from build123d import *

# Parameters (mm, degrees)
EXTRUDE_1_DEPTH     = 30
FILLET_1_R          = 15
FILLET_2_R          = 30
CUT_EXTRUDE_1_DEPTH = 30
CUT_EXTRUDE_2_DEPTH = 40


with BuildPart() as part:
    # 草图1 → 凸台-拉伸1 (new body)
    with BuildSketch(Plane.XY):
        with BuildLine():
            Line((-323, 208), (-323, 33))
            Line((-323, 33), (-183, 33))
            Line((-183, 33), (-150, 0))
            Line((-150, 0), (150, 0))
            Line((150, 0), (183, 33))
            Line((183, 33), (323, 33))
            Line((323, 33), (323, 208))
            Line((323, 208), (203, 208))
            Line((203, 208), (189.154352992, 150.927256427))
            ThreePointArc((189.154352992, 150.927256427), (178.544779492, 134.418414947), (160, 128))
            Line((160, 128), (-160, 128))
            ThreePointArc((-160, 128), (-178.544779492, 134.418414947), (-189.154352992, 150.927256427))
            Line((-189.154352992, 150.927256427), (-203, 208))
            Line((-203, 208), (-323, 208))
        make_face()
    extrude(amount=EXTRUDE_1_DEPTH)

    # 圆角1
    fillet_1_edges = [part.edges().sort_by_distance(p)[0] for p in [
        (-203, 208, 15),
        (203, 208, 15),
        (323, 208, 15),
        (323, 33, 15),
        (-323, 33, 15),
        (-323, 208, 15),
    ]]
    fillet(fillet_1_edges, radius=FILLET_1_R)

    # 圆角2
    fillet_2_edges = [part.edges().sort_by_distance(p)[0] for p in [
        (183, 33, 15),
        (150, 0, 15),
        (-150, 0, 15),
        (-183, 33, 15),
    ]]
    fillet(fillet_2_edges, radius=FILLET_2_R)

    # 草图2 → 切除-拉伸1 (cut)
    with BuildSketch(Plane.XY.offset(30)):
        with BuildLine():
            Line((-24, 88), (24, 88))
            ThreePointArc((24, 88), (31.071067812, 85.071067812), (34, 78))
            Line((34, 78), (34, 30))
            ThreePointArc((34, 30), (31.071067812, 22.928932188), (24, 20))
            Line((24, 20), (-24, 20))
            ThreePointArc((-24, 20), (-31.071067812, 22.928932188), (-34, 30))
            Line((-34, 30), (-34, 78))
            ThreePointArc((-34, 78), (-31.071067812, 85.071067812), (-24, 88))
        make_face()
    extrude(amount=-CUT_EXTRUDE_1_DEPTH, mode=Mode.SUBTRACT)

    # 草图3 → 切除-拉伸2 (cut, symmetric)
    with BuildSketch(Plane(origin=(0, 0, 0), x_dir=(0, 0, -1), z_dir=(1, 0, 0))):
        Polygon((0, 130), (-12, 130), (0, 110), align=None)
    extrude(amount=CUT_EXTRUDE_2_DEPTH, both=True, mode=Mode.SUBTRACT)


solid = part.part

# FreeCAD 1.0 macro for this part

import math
import FreeCAD as App
import Part
import Sketcher

V = App.Vector


def edges_at(feature, points):
    """Names of the edges that pass closest to the given points."""
    edges = feature.Shape.Edges
    near = lambda p: min(range(len(edges)), key=lambda i: edges[i].distToShape(Part.Vertex(*p))[0])
    return sorted({f"Edge{near(p) + 1}" for p in points})


def add_polygon(sketch, points):
    """Adds a closed chain of lines whose ends are joined by coincident constraints."""
    first, n = sketch.GeometryCount, len(points)
    for a, b in zip(points, points[1:] + points[:1]):
        sketch.addGeometry(Part.LineSegment(App.Vector(*a, 0), App.Vector(*b, 0)), False)
    for i in range(n):
        sketch.addConstraint(Sketcher.Constraint("Coincident", first + i, 2, first + (i + 1) % n, 1))

doc = App.newDocument("Part")
body = doc.addObject("PartDesign::Body", "Body")

# Sketch on XY plane
sketch1 = body.newObject("Sketcher::SketchObject", "Sketch")
sketch1.AttachmentSupport = (doc.getObject("XY_Plane"), [""])
sketch1.MapMode = "FlatFace"
sketch1.addGeometry([
    Part.LineSegment(V(-323, 208, 0), V(-323, 33, 0)),  # 0
    Part.LineSegment(V(-323, 33, 0), V(-183, 33, 0)),  # 1
    Part.LineSegment(V(-183, 33, 0), V(-150, 0, 0)),  # 2
    Part.LineSegment(V(-150, 0, 0), V(150, 0, 0)),  # 3
    Part.LineSegment(V(150, 0, 0), V(183, 33, 0)),  # 4
    Part.LineSegment(V(183, 33, 0), V(323, 33, 0)),  # 5
    Part.LineSegment(V(323, 33, 0), V(323, 208, 0)),  # 6
    Part.LineSegment(V(323, 208, 0), V(203, 208, 0)),  # 7
    Part.LineSegment(V(203, 208, 0), V(189, 151, 0)),  # 8
    Part.ArcOfCircle(Part.Circle(V(160, 158, 0), V(0, 0, 1), 30), math.radians(-90), math.radians(-14)),  # 9
    Part.LineSegment(V(160, 128, 0), V(-160, 128, 0)),  # 10
    Part.ArcOfCircle(Part.Circle(V(-160, 158, 0), V(0, 0, 1), 30), math.radians(-166), math.radians(-90)),  # 11
    Part.LineSegment(V(-189, 151, 0), V(-203, 208, 0)),  # 12
    Part.LineSegment(V(-203, 208, 0), V(-323, 208, 0)),  # 13
], False)
sketch1.addConstraint([
    Sketcher.Constraint("Coincident", 0, 2, 1, 1),
    Sketcher.Constraint("Coincident", 1, 2, 2, 1),
    Sketcher.Constraint("Coincident", 2, 2, 3, 1),
    Sketcher.Constraint("Coincident", 3, 2, 4, 1),
    Sketcher.Constraint("Coincident", 4, 2, 5, 1),
    Sketcher.Constraint("Coincident", 5, 2, 6, 1),
    Sketcher.Constraint("Coincident", 6, 2, 7, 1),
    Sketcher.Constraint("Coincident", 7, 2, 8, 1),
    Sketcher.Constraint("Tangent", 8, 2, 9, 2),
    Sketcher.Constraint("Tangent", 9, 1, 10, 1),
    Sketcher.Constraint("Tangent", 10, 2, 11, 2),
    Sketcher.Constraint("Tangent", 11, 1, 12, 1),
    Sketcher.Constraint("Coincident", 12, 2, 13, 1),
    Sketcher.Constraint("Coincident", 13, 2, 0, 1),
    Sketcher.Constraint("Vertical", 0),
    Sketcher.Constraint("Horizontal", 1),
    Sketcher.Constraint("Horizontal", 3),
    Sketcher.Constraint("Horizontal", 5),
    Sketcher.Constraint("Vertical", 6),
    Sketcher.Constraint("Horizontal", 7),
    Sketcher.Constraint("Horizontal", 10),
    Sketcher.Constraint("Horizontal", 13),
    Sketcher.Constraint("Equal", 9, 11),
    Sketcher.Constraint("Symmetric", 2, 2, 3, 2, -1, 1),
    Sketcher.Constraint("Symmetric", 1, 2, 4, 2, -2),
    Sketcher.Constraint("Symmetric", 8, 2, 11, 1, -2),
    Sketcher.Constraint("Symmetric", 6, 2, 13, 2, -2),
    Sketcher.Constraint("Perpendicular", 2, 4),
    Sketcher.Constraint("Radius", 9, 30.0),
    Sketcher.Constraint("DistanceX", 1, 1, 1, 2, 140.0),
    Sketcher.Constraint("DistanceX", 3, 1, 3, 2, 300.0),
    Sketcher.Constraint("DistanceX", 7, 2, 7, 1, 120.0),
    Sketcher.Constraint("DistanceX", 10, 2, 10, 1, 320.0),
    Sketcher.Constraint("DistanceY", 0, 2, 0, 1, 175.0),
    Sketcher.Constraint("DistanceY", -1, 1, 9, 3, 158.0),
    Sketcher.Constraint("DistanceX", 0, 2, -1, 1, 323.0),
])
pad1 = body.newObject("PartDesign::Pad", "Pad")
pad1.Profile = sketch1
pad1.Length = 30
doc.recompute()

fillet = body.newObject("PartDesign::Fillet", "Fillet")
fillet.Base = (pad1, edges_at(pad1, [
    (-203, 208, 15),
    (203, 208, 15),
    (323, 208, 15),
    (323, 33, 15),
    (-323, 33, 15),
    (-323, 208, 15),
]))
fillet.Radius = 15
doc.recompute()

fillet2 = body.newObject("PartDesign::Fillet", "Fillet001")
fillet2.Base = (fillet, edges_at(fillet, [
    (183, 33, 15),
    (150, 0, 15),
    (-150, 0, 15),
    (-183, 33, 15),
]))
fillet2.Radius = 30

# Sketch on XY plane
sketch2 = body.newObject("Sketcher::SketchObject", "Sketch001")
sketch2.AttachmentSupport = (doc.getObject("XY_Plane"), [""])
sketch2.MapMode = "FlatFace"
sketch2.AttachmentOffset = App.Placement(V(0, 0, 30), App.Rotation())
sketch2.addGeometry([
    Part.LineSegment(V(24, 88, 0), V(-24, 88, 0)),  # 0
    Part.ArcOfCircle(Part.Circle(V(-24, 78, 0), V(0, 0, 1), 10), math.radians(90), math.radians(180)),  # 1
    Part.LineSegment(V(-34, 78, 0), V(-34, 30, 0)),  # 2
    Part.ArcOfCircle(Part.Circle(V(-24, 30, 0), V(0, 0, 1), 10), math.radians(180), math.radians(270)),  # 3
    Part.LineSegment(V(-24, 20, 0), V(24, 20, 0)),  # 4
    Part.ArcOfCircle(Part.Circle(V(24, 30, 0), V(0, 0, 1), 10), math.radians(-90), math.radians(0)),  # 5
    Part.LineSegment(V(34, 30, 0), V(34, 78, 0)),  # 6
    Part.ArcOfCircle(Part.Circle(V(24, 78, 0), V(0, 0, 1), 10), math.radians(0), math.radians(90)),  # 7
], False)
sketch2.addConstraint([
    Sketcher.Constraint("Tangent", 0, 2, 1, 1),
    Sketcher.Constraint("Tangent", 1, 2, 2, 1),
    Sketcher.Constraint("Tangent", 2, 2, 3, 1),
    Sketcher.Constraint("Tangent", 3, 2, 4, 1),
    Sketcher.Constraint("Tangent", 4, 2, 5, 1),
    Sketcher.Constraint("Tangent", 5, 2, 6, 1),
    Sketcher.Constraint("Tangent", 6, 2, 7, 1),
    Sketcher.Constraint("Tangent", 7, 2, 0, 1),
    Sketcher.Constraint("Horizontal", 0),
    Sketcher.Constraint("Vertical", 2),
    Sketcher.Constraint("Horizontal", 4),
    Sketcher.Constraint("Vertical", 6),
    Sketcher.Constraint("Equal", 1, 3),
    Sketcher.Constraint("Equal", 3, 5),
    Sketcher.Constraint("Equal", 5, 7),
    Sketcher.Constraint("Equal", 4, 2),
    Sketcher.Constraint("Radius", 1, 10.0),
    Sketcher.Constraint("DistanceX", 0, 2, 0, 1, 48.0),
    Sketcher.Constraint("DistanceX", 1, 3, -1, 1, 24.0),
    Sketcher.Constraint("DistanceY", -1, 1, 1, 3, 78.0),
])
pocket1 = body.newObject("PartDesign::Pocket", "Pocket")
pocket1.Profile = sketch2
pocket1.Length = 30

# Sketch on YZ plane
sketch3 = body.newObject("Sketcher::SketchObject", "Sketch002")
sketch3.AttachmentSupport = (doc.getObject("YZ_Plane"), [""])
sketch3.MapMode = "FlatFace"
add_polygon(sketch3, [(130, 0), (130, 12), (110, 0)])  # lines 0-2
sketch3.addConstraint([
    Sketcher.Constraint("Vertical", 0),
    Sketcher.Constraint("Horizontal", 2),
    Sketcher.Constraint("PointOnObject", 1, 2, -1),
    Sketcher.Constraint("DistanceX", 2, 1, 2, 2, 20.0),
    Sketcher.Constraint("DistanceY", 0, 1, 0, 2, 12.0),
    Sketcher.Constraint("DistanceX", -1, 1, 0, 2, 130.0),
])
pocket2 = body.newObject("PartDesign::Pocket", "Pocket001")
pocket2.Profile = sketch3
pocket2.Length = 80
pocket2.Midplane = True

doc.recompute()
